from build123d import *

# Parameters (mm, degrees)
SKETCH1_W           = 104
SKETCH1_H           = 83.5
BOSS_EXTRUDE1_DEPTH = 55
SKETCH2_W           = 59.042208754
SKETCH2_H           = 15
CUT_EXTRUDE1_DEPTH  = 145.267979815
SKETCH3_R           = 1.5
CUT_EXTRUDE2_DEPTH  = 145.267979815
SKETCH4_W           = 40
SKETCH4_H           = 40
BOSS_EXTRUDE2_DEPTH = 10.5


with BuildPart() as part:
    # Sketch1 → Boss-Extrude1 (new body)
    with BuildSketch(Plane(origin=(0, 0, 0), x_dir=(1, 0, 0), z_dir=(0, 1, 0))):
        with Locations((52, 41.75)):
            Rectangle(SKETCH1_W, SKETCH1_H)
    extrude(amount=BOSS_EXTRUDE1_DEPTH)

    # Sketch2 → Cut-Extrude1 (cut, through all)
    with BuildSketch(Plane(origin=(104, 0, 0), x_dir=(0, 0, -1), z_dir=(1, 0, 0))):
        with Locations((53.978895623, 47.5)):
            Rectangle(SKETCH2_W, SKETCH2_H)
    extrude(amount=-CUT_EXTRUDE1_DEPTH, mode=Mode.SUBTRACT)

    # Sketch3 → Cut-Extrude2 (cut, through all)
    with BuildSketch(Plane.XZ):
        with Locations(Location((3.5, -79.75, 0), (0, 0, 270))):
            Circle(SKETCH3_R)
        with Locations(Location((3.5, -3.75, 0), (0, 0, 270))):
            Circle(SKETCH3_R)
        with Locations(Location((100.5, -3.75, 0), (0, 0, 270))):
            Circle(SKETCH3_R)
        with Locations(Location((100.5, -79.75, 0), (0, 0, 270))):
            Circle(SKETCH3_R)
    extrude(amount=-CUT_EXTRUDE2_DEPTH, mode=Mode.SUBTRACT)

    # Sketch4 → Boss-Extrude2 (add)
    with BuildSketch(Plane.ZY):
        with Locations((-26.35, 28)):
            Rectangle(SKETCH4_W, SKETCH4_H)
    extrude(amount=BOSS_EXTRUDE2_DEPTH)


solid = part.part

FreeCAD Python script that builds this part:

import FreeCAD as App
import Part
import Sketcher
from FreeCAD import Vector
Q = App.Units.Quantity


def add_polygon(sketch, points):
    """Adds a closed chain of lines whose ends are joined by coincident constraints."""
    first, n = sketch.GeometryCount, len(points)
    for a, b in zip(points, points[1:] + points[:1]):
        sketch.addGeometry(Part.LineSegment(App.Vector(*a, 0), App.Vector(*b, 0)), False)
    for i in range(n):
        sketch.addConstraint(Sketcher.Constraint("Coincident", first + i, 2, first + (i + 1) % n, 1))

doc = App.newDocument("Part")
body = doc.addObject("PartDesign::Body", "Body")

sketch1 = body.newObject("Sketcher::SketchObject", "Sketch")
sketch1.AttachmentSupport = (doc.getObject("XZ_Plane"), [""])
sketch1.MapMode = "FlatFace"
add_polygon(sketch1, [(0, -84), (0, 0), (104, 0), (104, -84)])
sketch1.addConstraint([
    Sketcher.Constraint("Vertical", 0),
    Sketcher.Constraint("Horizontal", 1),
    Sketcher.Constraint("Vertical", 2),
    Sketcher.Constraint("Horizontal", 3),
    Sketcher.Constraint("Coincident", 0, 2, -1, 1),
    Sketcher.Constraint("DistanceX", 1, 1, 1, 2, Q("104 mm")),
    Sketcher.Constraint("DistanceY", 0, 1, 0, 2, Q("83.5 mm")),
])
pad1 = body.newObject("PartDesign::Pad", "Pad")
pad1.Profile = sketch1
pad1.Length = 55
pad1.Reversed = True

sketch2 = body.newObject("Sketcher::SketchObject", "Sketch001")
sketch2.AttachmentSupport = (doc.getObject("YZ_Plane"), [""])
sketch2.MapMode = "FlatFace"
sketch2.AttachmentOffset = App.Placement(Vector(0, 0, 104), App.Rotation())
add_polygon(sketch2, [(55, -24), (40, -24), (40, -84), (55, -84)])
sketch2.addConstraint([
    Sketcher.Constraint("Horizontal", 0),
    Sketcher.Constraint("Vertical", 1),
    Sketcher.Constraint("Horizontal", 2),
    Sketcher.Constraint("Vertical", 3),
    Sketcher.Constraint("DistanceX", 0, 2, 0, 1, Q("15 mm")),
    Sketcher.Constraint("DistanceX", -1, 1, 0, 2, Q("40 mm")),
    Sketcher.Constraint("DistanceY", 1, 2, -1, 1, Q("83.5 mm")),
    Sketcher.Constraint("DistanceY", 1, 2, 1, 1, Q("59.042209 mm")),
])
pocket1 = body.newObject("PartDesign::Pocket", "Pocket")
pocket1.Profile = sketch2
pocket1.Type = "ThroughAll"

sketch3 = body.newObject("Sketcher::SketchObject", "Sketch002")
sketch3.AttachmentSupport = (doc.getObject("XZ_Plane"), [""])
sketch3.MapMode = "FlatFace"
sketch3.addGeometry([
    Part.Circle(Vector(3.5, -79.8, 0), Vector(0, 0, 1), 1.5),
    Part.Circle(Vector(3.5, -3.8, 0), Vector(0, 0, 1), 1.5),
    Part.Circle(Vector(100.5, -3.8, 0), Vector(0, 0, 1), 1.5),
    Part.Circle(Vector(100.5, -79.8, 0), Vector(0, 0, 1), 1.5),
], False)
sketch3.addConstraint([
    Sketcher.Constraint("Equal", 0, 1),
    Sketcher.Constraint("Equal", 1, 2),
    Sketcher.Constraint("Equal", 2, 3),
    Sketcher.Constraint("Horizontal", 1, 3, 2, 3),
    Sketcher.Constraint("Horizontal", 0, 3, 3, 3),
    Sketcher.Constraint("Vertical", 0, 3, 1, 3),
    Sketcher.Constraint("Vertical", 2, 3, 3, 3),
    Sketcher.Constraint("Diameter", 0, Q("3 mm")),
    Sketcher.Constraint("DistanceY", 0, 3, 1, 3, Q("76 mm")),
    Sketcher.Constraint("DistanceX", 1, 3, 2, 3, Q("97 mm")),
    Sketcher.Constraint("DistanceX", -1, 1, 0, 3, Q("3.5 mm")),
    Sketcher.Constraint("DistanceY", 0, 3, -1, 1, Q("79.75 mm")),
])
pocket2 = body.newObject("PartDesign::Pocket", "Pocket001")
pocket2.Profile = sketch3
pocket2.Type = "ThroughAll"

sketch4 = body.newObject("Sketcher::SketchObject", "Sketch003")
sketch4.AttachmentSupport = (doc.getObject("YZ_Plane"), [""])
sketch4.MapMode = "FlatFace"
add_polygon(sketch4, [(48, -46), (8, -46), (8, -6), (48, -6)])
sketch4.addConstraint([
    Sketcher.Constraint("Horizontal", 0),
    Sketcher.Constraint("Vertical", 1),
    Sketcher.Constraint("Horizontal", 2),
    Sketcher.Constraint("Vertical", 3),
    Sketcher.Constraint("Equal", 2, 1),
    Sketcher.Constraint("DistanceX", 0, 2, 0, 1, Q("40 mm")),
    Sketcher.Constraint("DistanceX", -1, 1, 0, 2, Q("8 mm")),
    Sketcher.Constraint("DistanceY", 0, 2, -1, 1, Q("46.35 mm")),
])
pad2 = body.newObject("PartDesign::Pad", "Pad001")
pad2.Profile = sketch4
pad2.Length = 10.5
pad2.Reversed = True

doc.recompute()
